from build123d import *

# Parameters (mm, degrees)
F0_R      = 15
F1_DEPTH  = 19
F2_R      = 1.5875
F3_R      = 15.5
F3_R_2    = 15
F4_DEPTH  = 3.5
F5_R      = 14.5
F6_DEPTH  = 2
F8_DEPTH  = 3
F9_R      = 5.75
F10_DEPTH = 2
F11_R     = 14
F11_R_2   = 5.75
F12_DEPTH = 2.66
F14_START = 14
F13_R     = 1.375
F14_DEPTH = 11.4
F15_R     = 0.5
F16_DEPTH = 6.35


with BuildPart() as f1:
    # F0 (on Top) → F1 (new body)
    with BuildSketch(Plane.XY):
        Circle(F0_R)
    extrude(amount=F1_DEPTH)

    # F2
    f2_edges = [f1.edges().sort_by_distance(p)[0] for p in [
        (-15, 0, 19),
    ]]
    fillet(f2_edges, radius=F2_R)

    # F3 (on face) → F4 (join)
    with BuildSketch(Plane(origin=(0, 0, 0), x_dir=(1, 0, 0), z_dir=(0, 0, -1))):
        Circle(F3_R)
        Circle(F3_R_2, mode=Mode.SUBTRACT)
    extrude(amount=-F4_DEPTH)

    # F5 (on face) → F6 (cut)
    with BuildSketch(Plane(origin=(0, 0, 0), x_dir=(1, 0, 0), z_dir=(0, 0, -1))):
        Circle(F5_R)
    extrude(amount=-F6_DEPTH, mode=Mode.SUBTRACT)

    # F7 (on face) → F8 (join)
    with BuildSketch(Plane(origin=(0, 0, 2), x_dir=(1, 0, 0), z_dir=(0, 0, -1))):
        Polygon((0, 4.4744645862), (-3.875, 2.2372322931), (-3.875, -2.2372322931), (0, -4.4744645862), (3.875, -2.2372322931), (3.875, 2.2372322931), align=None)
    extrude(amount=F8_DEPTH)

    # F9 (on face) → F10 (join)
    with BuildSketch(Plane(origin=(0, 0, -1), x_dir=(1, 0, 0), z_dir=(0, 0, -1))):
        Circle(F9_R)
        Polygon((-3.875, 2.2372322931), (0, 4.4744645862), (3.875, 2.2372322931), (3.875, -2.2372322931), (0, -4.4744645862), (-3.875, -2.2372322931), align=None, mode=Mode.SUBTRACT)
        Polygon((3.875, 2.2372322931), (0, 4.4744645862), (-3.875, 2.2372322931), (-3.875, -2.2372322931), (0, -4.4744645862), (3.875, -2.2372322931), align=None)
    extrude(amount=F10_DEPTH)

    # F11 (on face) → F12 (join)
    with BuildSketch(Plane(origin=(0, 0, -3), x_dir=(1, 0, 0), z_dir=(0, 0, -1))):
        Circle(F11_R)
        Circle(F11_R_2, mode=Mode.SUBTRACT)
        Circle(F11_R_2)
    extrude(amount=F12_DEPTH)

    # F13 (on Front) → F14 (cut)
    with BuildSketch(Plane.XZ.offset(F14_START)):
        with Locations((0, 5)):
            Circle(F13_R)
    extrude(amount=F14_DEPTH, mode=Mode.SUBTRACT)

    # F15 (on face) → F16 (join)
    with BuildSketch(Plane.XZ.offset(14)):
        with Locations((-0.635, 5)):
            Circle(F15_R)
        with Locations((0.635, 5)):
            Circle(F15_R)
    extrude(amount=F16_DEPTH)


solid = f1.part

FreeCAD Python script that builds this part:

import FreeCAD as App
import Part
import Sketcher

V = App.Vector
Q = App.Units.Quantity


def edges_at(feature, points):
    """Names of the edges that pass closest to the given points."""
    edges = feature.Shape.Edges
    near = lambda p: min(range(len(edges)), key=lambda i: edges[i].distToShape(Part.Vertex(*p))[0])
    return sorted({f"Edge{near(p) + 1}" for p in points})


def add_polygon(sketch, points):
    """Adds a closed chain of lines whose ends are joined by coincident constraints."""
    first, n = sketch.GeometryCount, len(points)
    for a, b in zip(points, points[1:] + points[:1]):
        sketch.addGeometry(Part.LineSegment(App.Vector(*a, 0), App.Vector(*b, 0)), False)
    for i in range(n):
        sketch.addConstraint(Sketcher.Constraint("Coincident", first + i, 2, first + (i + 1) % n, 1))

doc = App.newDocument("Part")
params = doc.addObject("Spreadsheet::Sheet", "Params")
for row, (alias, value) in enumerate([
    ("sketch1_diameter", "30 mm"),
    ("pad1_length", "19 mm"),
    ("fillet_radius", "1.5875 mm"),
    ("sketch2_diameter", "31 mm"),
    ("sketch2_diameter2", "30 mm"),
    ("pad2_length", "3.5 mm"),
    ("sketch3_diameter", "29 mm"),
    ("pocket1_length", "2 mm"),
    ("pad3_length", "3 mm"),
    ("sketch5_diameter", "11.5 mm"),
    ("pad4_length", "2 mm"),
    ("sketch6_diameter", "28 mm"),
    ("pad5_length", "2.66 mm"),
    ("sketch7_diameter", "2.75 mm"),
    ("pocket2_length", "11.4 mm"),
    ("sketch8_diameter", "1 mm"),
    ("pad6_length", "6.35 mm"),
], start=1):
    params.set(f"A{row}", alias)
    params.set(f"B{row}", "=" + value)
    params.setAlias(f"B{row}", alias)

body = doc.addObject("PartDesign::Body", "Body")

sketch1 = body.newObject("Sketcher::SketchObject", "Sketch")
sketch1.AttachmentSupport = (doc.getObject("XY_Plane"), [""])
sketch1.MapMode = "FlatFace"
sketch1.addGeometry(Part.Circle(V(0, 0, 0), V(0, 0, 1), 15), False)
sketch1.addConstraint([
    Sketcher.Constraint("Coincident", 0, 3, -1, 1),
    Sketcher.Constraint("Diameter", 0, 30.0),
])
sketch1.setExpression("Constraints[1]", "Params.sketch1_diameter")
pad1 = body.newObject("PartDesign::Pad", "Pad")
pad1.Profile = sketch1
pad1.setExpression("Length", "Params.pad1_length")
doc.recompute()

fillet = body.newObject("PartDesign::Fillet", "Fillet")
fillet.Base = (pad1, edges_at(pad1, [(-15, 0, 19)]))
fillet.setExpression("Radius", "Params.fillet_radius")

sketch2 = body.newObject("Sketcher::SketchObject", "Sketch001")
sketch2.AttachmentSupport = (doc.getObject("XY_Plane"), [""])
sketch2.MapMode = "FlatFace"
sketch2.addGeometry([
    Part.Circle(V(0, 0, 0), V(0, 0, 1), 16),
    Part.Circle(V(0, 0, 0), V(0, 0, 1), 15),
], False)
sketch2.addConstraint([
    Sketcher.Constraint("Coincident", 0, 3, -1, 1),
    Sketcher.Constraint("Coincident", 1, 3, -1, 1),
    Sketcher.Constraint("Diameter", 0, 31.0),
    Sketcher.Constraint("Diameter", 1, 30.0),
])
sketch2.setExpression("Constraints[2]", "Params.sketch2_diameter")
sketch2.setExpression("Constraints[3]", "Params.sketch2_diameter2")
pad2 = body.newObject("PartDesign::Pad", "Pad001")
pad2.Profile = sketch2
pad2.setExpression("Length", "Params.pad2_length")

sketch3 = body.newObject("Sketcher::SketchObject", "Sketch002")
sketch3.AttachmentSupport = (doc.getObject("XY_Plane"), [""])
sketch3.MapMode = "FlatFace"
sketch3.addGeometry(Part.Circle(V(0, 0, 0), V(0, 0, 1), 14), False)
sketch3.addConstraint([
    Sketcher.Constraint("Coincident", 0, 3, -1, 1),
    Sketcher.Constraint("Diameter", 0, 29.0),
])
sketch3.setExpression("Constraints[1]", "Params.sketch3_diameter")
pocket1 = body.newObject("PartDesign::Pocket", "Pocket")
pocket1.Profile = sketch3
pocket1.setExpression("Length", "Params.pocket1_length")
pocket1.Reversed = True

sketch4 = body.newObject("Sketcher::SketchObject", "Sketch003")
sketch4.AttachmentSupport = (doc.getObject("XY_Plane"), [""])
sketch4.MapMode = "FlatFace"
sketch4.AttachmentOffset = App.Placement(V(0, 0, 2), App.Rotation())
add_polygon(sketch4, [(0, -4.5), (-3.9, -2.2), (-3.9, 2.2), (0, 4.5), (3.9, 2.2), (3.9, -2.2)])
sketch4.addConstraint([
    Sketcher.Constraint("Vertical", 1),
    Sketcher.Constraint("Vertical", 4),
    Sketcher.Constraint("Symmetric", 0, 2, 3, 2, -1, 1),
    Sketcher.Constraint("Symmetric", 2, 2, 5, 2, -1, 1),
    Sketcher.Constraint("PointOnObject", 2, 2, -2),
    Sketcher.Constraint("Parallel", 2, 5),
    Sketcher.Constraint("Horizontal", 1, 2, 3, 2),
    Sketcher.Constraint("Angle", 0, Q("150 deg")),
    Sketcher.Constraint("DistanceX", 1, 2, 3, 2, 7.75),
    Sketcher.Constraint("DistanceY", 1, 1, 1, 2, 4.474465),
])
pad3 = body.newObject("PartDesign::Pad", "Pad002")
pad3.Profile = sketch4
pad3.setExpression("Length", "Params.pad3_length")
pad3.Reversed = True

sketch5 = body.newObject("Sketcher::SketchObject", "Sketch004")
sketch5.AttachmentSupport = (doc.getObject("XY_Plane"), [""])
sketch5.MapMode = "FlatFace"
sketch5.AttachmentOffset = App.Placement(V(0, 0, -1), App.Rotation())
sketch5.addGeometry(Part.Circle(V(0, 0, 0), V(0, 0, 1), 6), False)
sketch5.addConstraint([
    Sketcher.Constraint("Coincident", 0, 3, -1, 1),
    Sketcher.Constraint("Diameter", 0, 11.5),
])
sketch5.setExpression("Constraints[1]", "Params.sketch5_diameter")
pad4 = body.newObject("PartDesign::Pad", "Pad003")
pad4.Profile = sketch5
pad4.setExpression("Length", "Params.pad4_length")
pad4.Reversed = True

sketch6 = body.newObject("Sketcher::SketchObject", "Sketch005")
sketch6.AttachmentSupport = (doc.getObject("XY_Plane"), [""])
sketch6.MapMode = "FlatFace"
sketch6.AttachmentOffset = App.Placement(V(0, 0, -3), App.Rotation())
sketch6.addGeometry(Part.Circle(V(0, 0, 0), V(0, 0, 1), 14), False)
sketch6.addConstraint([
    Sketcher.Constraint("Coincident", 0, 3, -1, 1),
    Sketcher.Constraint("Diameter", 0, 28.0),
])
sketch6.setExpression("Constraints[1]", "Params.sketch6_diameter")
pad5 = body.newObject("PartDesign::Pad", "Pad004")
pad5.Profile = sketch6
pad5.setExpression("Length", "Params.pad5_length")
pad5.Reversed = True

sketch7 = body.newObject("Sketcher::SketchObject", "Sketch006")
sketch7.AttachmentSupport = (doc.getObject("XZ_Plane"), [""])
sketch7.MapMode = "FlatFace"
sketch7.AttachmentOffset = App.Placement(V(0, 0, 14), App.Rotation())
sketch7.addGeometry(Part.Circle(V(0, 5, 0), V(0, 0, 1), 1.4), False)
sketch7.addConstraint([
    Sketcher.Constraint("PointOnObject", 0, 3, -2),
    Sketcher.Constraint("Diameter", 0, 2.75),
    Sketcher.Constraint("DistanceY", -1, 1, 0, 3, 5.0),
])
sketch7.setExpression("Constraints[1]", "Params.sketch7_diameter")
pocket2 = body.newObject("PartDesign::Pocket", "Pocket001")
pocket2.Profile = sketch7
pocket2.setExpression("Length", "Params.pocket2_length")
pocket2.Reversed = True

sketch8 = body.newObject("Sketcher::SketchObject", "Sketch007")
sketch8.AttachmentSupport = (doc.getObject("XZ_Plane"), [""])
sketch8.MapMode = "FlatFace"
sketch8.AttachmentOffset = App.Placement(V(0, 0, 14), App.Rotation())
sketch8.addGeometry([
    Part.Circle(V(-0.6, 5, 0), V(0, 0, 1), 0.5),
    Part.Circle(V(0.6, 5, 0), V(0, 0, 1), 0.5),
], False)
sketch8.addConstraint([
    Sketcher.Constraint("Equal", 0, 1),
    Sketcher.Constraint("Symmetric", 0, 3, 1, 3, -2),
    Sketcher.Constraint("Diameter", 0, 1.0),
    Sketcher.Constraint("DistanceY", -1, 1, 0, 3, 5.0),
    Sketcher.Constraint("DistanceX", 0, 3, 1, 3, 1.27),
])
sketch8.setExpression("Constraints[2]", "Params.sketch8_diameter")
pad6 = body.newObject("PartDesign::Pad", "Pad005")
pad6.Profile = sketch8
pad6.setExpression("Length", "Params.pad6_length")

doc.recompute()
